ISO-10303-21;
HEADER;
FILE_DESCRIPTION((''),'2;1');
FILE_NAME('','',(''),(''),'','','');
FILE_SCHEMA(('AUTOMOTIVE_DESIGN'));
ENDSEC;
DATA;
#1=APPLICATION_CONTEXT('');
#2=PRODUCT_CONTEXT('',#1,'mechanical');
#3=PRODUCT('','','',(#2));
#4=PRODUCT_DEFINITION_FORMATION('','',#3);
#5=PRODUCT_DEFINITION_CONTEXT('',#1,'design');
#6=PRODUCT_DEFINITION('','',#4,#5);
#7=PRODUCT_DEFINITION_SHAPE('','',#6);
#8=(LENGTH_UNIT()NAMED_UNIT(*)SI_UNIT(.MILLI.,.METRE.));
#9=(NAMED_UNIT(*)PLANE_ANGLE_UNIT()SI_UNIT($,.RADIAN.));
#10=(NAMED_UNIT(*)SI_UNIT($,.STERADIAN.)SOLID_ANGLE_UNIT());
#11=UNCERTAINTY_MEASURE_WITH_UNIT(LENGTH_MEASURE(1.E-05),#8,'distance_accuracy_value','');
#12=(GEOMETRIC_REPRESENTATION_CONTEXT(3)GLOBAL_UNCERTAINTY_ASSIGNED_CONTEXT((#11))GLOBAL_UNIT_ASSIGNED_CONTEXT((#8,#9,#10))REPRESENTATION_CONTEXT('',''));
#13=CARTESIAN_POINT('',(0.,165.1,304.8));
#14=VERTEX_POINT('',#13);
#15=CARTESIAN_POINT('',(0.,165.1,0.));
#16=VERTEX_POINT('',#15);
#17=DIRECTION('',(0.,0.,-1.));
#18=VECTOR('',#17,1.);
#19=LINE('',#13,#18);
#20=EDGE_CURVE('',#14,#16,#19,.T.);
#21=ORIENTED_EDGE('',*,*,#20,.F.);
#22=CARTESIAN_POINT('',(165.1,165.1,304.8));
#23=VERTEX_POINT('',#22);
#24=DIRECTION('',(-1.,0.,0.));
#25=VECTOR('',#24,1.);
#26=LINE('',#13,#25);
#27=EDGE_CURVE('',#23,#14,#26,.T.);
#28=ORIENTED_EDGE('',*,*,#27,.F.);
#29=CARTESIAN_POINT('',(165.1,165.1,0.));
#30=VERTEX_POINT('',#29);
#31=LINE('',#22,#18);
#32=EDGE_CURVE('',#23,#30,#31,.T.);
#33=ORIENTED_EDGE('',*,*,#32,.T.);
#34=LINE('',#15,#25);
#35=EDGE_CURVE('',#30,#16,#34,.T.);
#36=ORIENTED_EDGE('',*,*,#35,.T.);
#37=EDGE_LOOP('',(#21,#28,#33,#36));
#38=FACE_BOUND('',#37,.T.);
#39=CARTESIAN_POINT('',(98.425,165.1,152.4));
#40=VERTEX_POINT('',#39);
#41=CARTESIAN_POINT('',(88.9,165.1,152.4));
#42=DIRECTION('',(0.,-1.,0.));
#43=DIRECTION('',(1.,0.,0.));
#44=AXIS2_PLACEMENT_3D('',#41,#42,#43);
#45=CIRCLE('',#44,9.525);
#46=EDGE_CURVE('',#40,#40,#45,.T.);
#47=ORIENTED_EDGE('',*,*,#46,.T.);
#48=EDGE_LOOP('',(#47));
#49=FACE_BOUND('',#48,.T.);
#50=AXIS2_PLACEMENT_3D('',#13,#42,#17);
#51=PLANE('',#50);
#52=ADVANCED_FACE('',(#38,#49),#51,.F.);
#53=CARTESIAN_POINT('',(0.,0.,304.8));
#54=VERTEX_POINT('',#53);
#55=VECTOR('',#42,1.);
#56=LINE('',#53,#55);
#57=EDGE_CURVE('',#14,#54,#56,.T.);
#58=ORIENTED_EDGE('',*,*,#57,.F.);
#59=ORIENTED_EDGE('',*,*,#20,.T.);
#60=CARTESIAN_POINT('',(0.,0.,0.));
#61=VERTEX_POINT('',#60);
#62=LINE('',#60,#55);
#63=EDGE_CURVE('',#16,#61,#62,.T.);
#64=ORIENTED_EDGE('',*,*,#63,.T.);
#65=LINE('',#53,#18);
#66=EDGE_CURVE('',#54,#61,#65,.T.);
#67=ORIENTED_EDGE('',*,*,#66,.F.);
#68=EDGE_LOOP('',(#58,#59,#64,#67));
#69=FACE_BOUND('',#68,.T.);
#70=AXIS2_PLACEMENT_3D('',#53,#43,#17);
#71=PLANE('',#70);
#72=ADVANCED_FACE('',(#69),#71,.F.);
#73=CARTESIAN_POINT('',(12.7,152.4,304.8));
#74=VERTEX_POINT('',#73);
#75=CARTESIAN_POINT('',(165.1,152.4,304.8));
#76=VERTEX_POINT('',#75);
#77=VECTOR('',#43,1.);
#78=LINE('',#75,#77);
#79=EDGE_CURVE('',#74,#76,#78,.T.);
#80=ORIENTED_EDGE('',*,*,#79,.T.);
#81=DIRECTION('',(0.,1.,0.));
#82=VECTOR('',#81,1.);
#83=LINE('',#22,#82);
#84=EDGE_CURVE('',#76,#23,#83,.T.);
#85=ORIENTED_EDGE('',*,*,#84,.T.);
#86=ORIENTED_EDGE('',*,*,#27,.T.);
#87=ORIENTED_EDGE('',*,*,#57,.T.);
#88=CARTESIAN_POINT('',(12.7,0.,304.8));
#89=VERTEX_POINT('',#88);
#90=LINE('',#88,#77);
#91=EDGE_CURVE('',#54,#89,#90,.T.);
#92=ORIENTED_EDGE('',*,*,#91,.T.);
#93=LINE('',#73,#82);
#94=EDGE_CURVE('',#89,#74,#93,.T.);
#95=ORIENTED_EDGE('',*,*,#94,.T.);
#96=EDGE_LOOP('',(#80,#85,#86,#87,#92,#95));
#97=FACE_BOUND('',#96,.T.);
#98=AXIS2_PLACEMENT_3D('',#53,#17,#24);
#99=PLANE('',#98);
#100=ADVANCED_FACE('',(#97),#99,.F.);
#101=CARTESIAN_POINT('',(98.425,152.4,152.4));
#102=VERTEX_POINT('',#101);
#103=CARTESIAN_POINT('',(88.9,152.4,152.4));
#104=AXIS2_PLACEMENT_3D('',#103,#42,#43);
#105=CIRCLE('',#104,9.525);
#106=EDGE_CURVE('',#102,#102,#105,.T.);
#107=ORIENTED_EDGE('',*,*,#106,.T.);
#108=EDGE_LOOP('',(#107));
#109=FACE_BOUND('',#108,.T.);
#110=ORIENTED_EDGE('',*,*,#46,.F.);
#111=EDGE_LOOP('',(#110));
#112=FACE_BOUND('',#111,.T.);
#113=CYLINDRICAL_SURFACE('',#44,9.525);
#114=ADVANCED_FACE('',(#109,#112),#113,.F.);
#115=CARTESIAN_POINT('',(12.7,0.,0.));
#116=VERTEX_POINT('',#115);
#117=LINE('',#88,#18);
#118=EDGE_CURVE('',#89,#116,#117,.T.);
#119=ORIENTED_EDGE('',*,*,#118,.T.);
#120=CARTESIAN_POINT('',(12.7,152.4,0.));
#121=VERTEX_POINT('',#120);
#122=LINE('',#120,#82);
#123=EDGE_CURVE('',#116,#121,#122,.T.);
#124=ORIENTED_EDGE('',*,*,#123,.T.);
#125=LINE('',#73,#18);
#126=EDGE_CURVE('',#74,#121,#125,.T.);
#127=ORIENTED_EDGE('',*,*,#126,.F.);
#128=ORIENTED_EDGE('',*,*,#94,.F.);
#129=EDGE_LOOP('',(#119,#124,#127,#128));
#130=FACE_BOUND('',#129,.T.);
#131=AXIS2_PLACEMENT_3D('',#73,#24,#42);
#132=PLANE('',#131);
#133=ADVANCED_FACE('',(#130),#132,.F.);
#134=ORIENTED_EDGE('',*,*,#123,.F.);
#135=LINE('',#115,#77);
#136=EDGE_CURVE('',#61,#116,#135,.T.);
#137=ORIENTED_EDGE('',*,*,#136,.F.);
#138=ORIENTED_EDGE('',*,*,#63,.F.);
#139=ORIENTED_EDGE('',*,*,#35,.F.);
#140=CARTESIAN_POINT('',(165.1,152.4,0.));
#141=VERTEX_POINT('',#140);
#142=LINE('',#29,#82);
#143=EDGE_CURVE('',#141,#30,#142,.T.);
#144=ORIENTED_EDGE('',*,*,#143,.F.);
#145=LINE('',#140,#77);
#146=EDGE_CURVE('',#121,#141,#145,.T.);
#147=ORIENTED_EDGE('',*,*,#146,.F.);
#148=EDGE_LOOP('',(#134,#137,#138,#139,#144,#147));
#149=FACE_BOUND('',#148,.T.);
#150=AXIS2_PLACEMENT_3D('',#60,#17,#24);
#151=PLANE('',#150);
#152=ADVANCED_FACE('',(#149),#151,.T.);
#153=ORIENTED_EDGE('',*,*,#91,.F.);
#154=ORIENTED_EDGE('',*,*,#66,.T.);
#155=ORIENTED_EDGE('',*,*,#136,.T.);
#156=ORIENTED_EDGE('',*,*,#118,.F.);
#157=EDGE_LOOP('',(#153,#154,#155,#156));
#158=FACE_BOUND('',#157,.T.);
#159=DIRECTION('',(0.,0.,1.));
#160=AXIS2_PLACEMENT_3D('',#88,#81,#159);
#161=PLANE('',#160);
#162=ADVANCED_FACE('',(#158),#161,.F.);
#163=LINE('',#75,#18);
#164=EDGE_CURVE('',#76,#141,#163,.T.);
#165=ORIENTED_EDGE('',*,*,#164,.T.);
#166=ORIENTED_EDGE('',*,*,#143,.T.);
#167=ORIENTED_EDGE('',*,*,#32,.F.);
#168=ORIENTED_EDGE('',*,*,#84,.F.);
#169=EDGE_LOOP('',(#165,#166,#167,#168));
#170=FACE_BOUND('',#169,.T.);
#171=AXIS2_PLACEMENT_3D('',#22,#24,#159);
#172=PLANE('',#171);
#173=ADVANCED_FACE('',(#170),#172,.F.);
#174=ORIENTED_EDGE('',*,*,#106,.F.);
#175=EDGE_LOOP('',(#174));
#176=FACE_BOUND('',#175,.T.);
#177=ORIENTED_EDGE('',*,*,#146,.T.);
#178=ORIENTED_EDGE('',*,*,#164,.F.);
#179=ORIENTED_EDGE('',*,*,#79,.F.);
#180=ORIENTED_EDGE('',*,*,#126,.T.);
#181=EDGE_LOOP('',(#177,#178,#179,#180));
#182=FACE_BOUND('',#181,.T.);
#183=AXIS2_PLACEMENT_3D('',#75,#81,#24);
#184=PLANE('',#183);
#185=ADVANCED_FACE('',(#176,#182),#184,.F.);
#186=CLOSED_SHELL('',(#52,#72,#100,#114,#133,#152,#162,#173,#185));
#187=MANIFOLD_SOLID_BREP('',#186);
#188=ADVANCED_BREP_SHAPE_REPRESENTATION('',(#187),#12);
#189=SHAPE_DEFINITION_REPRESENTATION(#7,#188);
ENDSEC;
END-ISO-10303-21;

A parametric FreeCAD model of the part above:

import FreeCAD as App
import Part
import Sketcher

V = App.Vector
Q = App.Units.Quantity

doc = App.newDocument("Part")
body = doc.addObject("PartDesign::Body", "Body")

# Sketch on XY plane
sketch1 = body.newObject("Sketcher::SketchObject", "Sketch")
sketch1.AttachmentSupport = (doc.getObject("XY_Plane"), [""])
sketch1.MapMode = "FlatFace"
sketch1.addGeometry(Part.LineSegment(V(0, 165.1, 0), V(0, 0, 0)), False)
sketch1.addGeometry(Part.LineSegment(V(0, 0, 0), V(12.7, 0, 0)), False)
sketch1.addGeometry(Part.LineSegment(V(12.7, 0, 0), V(12.7, 152.4, 0)), False)
sketch1.addGeometry(Part.LineSegment(V(12.7, 152.4, 0), V(165.1, 152.4, 0)), False)
sketch1.addGeometry(Part.LineSegment(V(165.1, 152.4, 0), V(165.1, 165.1, 0)), False)
sketch1.addGeometry(Part.LineSegment(V(165.1, 165.1, 0), V(0, 165.1, 0)), False)
sketch1.addConstraint(Sketcher.Constraint("Coincident", 0, 2, 1, 1))
sketch1.addConstraint(Sketcher.Constraint("Coincident", 1, 2, 2, 1))
sketch1.addConstraint(Sketcher.Constraint("Coincident", 2, 2, 3, 1))
sketch1.addConstraint(Sketcher.Constraint("Coincident", 3, 2, 4, 1))
sketch1.addConstraint(Sketcher.Constraint("Coincident", 4, 2, 5, 1))
sketch1.addConstraint(Sketcher.Constraint("Coincident", 5, 2, 0, 1))
sketch1.addConstraint(Sketcher.Constraint("Vertical", 0))
sketch1.addConstraint(Sketcher.Constraint("Horizontal", 1))
sketch1.addConstraint(Sketcher.Constraint("Vertical", 2))
sketch1.addConstraint(Sketcher.Constraint("Horizontal", 3))
sketch1.addConstraint(Sketcher.Constraint("Vertical", 4))
sketch1.addConstraint(Sketcher.Constraint("Horizontal", 5))
sketch1.addConstraint(Sketcher.Constraint("Coincident", 0, 2, -1, 1))
sketch1.addConstraint(Sketcher.Constraint("Equal", 5, 0))
sketch1.addConstraint(Sketcher.Constraint("Equal", 3, 2))
sketch1.addConstraint(Sketcher.Constraint("DistanceX", 3, 1, 3, 2, Q("6 in")))
sketch1.addConstraint(Sketcher.Constraint("DistanceX", 1, 1, 1, 2, Q("0.5 in")))
pad1 = body.newObject("PartDesign::Pad", "Pad")
pad1.Profile = sketch1
pad1.Length = Q("12 in")

# Sketch on XZ plane
sketch2 = body.newObject("Sketcher::SketchObject", "Sketch001")
sketch2.AttachmentSupport = (doc.getObject("XZ_Plane"), [""])
sketch2.MapMode = "FlatFace"
sketch2.AttachmentOffset = App.Placement(V(0, 0, -6 * 25.4), App.Rotation())
sketch2.addGeometry(Part.Circle(V(88.9, 152.4, 0), V(0, 0, 1), 9.525), False)
sketch2.addConstraint(Sketcher.Constraint("Diameter", 0, Q("0.75 in")))
sketch2.addConstraint(Sketcher.Constraint("DistanceY", -1, 1, 0, 3, Q("6 in")))
sketch2.addConstraint(Sketcher.Constraint("DistanceX", -1, 1, 0, 3, Q("3.5 in")))
pocket1 = body.newObject("PartDesign::Pocket", "Pocket")
pocket1.Profile = sketch2
pocket1.Type = "ThroughAll"

doc.recompute()
